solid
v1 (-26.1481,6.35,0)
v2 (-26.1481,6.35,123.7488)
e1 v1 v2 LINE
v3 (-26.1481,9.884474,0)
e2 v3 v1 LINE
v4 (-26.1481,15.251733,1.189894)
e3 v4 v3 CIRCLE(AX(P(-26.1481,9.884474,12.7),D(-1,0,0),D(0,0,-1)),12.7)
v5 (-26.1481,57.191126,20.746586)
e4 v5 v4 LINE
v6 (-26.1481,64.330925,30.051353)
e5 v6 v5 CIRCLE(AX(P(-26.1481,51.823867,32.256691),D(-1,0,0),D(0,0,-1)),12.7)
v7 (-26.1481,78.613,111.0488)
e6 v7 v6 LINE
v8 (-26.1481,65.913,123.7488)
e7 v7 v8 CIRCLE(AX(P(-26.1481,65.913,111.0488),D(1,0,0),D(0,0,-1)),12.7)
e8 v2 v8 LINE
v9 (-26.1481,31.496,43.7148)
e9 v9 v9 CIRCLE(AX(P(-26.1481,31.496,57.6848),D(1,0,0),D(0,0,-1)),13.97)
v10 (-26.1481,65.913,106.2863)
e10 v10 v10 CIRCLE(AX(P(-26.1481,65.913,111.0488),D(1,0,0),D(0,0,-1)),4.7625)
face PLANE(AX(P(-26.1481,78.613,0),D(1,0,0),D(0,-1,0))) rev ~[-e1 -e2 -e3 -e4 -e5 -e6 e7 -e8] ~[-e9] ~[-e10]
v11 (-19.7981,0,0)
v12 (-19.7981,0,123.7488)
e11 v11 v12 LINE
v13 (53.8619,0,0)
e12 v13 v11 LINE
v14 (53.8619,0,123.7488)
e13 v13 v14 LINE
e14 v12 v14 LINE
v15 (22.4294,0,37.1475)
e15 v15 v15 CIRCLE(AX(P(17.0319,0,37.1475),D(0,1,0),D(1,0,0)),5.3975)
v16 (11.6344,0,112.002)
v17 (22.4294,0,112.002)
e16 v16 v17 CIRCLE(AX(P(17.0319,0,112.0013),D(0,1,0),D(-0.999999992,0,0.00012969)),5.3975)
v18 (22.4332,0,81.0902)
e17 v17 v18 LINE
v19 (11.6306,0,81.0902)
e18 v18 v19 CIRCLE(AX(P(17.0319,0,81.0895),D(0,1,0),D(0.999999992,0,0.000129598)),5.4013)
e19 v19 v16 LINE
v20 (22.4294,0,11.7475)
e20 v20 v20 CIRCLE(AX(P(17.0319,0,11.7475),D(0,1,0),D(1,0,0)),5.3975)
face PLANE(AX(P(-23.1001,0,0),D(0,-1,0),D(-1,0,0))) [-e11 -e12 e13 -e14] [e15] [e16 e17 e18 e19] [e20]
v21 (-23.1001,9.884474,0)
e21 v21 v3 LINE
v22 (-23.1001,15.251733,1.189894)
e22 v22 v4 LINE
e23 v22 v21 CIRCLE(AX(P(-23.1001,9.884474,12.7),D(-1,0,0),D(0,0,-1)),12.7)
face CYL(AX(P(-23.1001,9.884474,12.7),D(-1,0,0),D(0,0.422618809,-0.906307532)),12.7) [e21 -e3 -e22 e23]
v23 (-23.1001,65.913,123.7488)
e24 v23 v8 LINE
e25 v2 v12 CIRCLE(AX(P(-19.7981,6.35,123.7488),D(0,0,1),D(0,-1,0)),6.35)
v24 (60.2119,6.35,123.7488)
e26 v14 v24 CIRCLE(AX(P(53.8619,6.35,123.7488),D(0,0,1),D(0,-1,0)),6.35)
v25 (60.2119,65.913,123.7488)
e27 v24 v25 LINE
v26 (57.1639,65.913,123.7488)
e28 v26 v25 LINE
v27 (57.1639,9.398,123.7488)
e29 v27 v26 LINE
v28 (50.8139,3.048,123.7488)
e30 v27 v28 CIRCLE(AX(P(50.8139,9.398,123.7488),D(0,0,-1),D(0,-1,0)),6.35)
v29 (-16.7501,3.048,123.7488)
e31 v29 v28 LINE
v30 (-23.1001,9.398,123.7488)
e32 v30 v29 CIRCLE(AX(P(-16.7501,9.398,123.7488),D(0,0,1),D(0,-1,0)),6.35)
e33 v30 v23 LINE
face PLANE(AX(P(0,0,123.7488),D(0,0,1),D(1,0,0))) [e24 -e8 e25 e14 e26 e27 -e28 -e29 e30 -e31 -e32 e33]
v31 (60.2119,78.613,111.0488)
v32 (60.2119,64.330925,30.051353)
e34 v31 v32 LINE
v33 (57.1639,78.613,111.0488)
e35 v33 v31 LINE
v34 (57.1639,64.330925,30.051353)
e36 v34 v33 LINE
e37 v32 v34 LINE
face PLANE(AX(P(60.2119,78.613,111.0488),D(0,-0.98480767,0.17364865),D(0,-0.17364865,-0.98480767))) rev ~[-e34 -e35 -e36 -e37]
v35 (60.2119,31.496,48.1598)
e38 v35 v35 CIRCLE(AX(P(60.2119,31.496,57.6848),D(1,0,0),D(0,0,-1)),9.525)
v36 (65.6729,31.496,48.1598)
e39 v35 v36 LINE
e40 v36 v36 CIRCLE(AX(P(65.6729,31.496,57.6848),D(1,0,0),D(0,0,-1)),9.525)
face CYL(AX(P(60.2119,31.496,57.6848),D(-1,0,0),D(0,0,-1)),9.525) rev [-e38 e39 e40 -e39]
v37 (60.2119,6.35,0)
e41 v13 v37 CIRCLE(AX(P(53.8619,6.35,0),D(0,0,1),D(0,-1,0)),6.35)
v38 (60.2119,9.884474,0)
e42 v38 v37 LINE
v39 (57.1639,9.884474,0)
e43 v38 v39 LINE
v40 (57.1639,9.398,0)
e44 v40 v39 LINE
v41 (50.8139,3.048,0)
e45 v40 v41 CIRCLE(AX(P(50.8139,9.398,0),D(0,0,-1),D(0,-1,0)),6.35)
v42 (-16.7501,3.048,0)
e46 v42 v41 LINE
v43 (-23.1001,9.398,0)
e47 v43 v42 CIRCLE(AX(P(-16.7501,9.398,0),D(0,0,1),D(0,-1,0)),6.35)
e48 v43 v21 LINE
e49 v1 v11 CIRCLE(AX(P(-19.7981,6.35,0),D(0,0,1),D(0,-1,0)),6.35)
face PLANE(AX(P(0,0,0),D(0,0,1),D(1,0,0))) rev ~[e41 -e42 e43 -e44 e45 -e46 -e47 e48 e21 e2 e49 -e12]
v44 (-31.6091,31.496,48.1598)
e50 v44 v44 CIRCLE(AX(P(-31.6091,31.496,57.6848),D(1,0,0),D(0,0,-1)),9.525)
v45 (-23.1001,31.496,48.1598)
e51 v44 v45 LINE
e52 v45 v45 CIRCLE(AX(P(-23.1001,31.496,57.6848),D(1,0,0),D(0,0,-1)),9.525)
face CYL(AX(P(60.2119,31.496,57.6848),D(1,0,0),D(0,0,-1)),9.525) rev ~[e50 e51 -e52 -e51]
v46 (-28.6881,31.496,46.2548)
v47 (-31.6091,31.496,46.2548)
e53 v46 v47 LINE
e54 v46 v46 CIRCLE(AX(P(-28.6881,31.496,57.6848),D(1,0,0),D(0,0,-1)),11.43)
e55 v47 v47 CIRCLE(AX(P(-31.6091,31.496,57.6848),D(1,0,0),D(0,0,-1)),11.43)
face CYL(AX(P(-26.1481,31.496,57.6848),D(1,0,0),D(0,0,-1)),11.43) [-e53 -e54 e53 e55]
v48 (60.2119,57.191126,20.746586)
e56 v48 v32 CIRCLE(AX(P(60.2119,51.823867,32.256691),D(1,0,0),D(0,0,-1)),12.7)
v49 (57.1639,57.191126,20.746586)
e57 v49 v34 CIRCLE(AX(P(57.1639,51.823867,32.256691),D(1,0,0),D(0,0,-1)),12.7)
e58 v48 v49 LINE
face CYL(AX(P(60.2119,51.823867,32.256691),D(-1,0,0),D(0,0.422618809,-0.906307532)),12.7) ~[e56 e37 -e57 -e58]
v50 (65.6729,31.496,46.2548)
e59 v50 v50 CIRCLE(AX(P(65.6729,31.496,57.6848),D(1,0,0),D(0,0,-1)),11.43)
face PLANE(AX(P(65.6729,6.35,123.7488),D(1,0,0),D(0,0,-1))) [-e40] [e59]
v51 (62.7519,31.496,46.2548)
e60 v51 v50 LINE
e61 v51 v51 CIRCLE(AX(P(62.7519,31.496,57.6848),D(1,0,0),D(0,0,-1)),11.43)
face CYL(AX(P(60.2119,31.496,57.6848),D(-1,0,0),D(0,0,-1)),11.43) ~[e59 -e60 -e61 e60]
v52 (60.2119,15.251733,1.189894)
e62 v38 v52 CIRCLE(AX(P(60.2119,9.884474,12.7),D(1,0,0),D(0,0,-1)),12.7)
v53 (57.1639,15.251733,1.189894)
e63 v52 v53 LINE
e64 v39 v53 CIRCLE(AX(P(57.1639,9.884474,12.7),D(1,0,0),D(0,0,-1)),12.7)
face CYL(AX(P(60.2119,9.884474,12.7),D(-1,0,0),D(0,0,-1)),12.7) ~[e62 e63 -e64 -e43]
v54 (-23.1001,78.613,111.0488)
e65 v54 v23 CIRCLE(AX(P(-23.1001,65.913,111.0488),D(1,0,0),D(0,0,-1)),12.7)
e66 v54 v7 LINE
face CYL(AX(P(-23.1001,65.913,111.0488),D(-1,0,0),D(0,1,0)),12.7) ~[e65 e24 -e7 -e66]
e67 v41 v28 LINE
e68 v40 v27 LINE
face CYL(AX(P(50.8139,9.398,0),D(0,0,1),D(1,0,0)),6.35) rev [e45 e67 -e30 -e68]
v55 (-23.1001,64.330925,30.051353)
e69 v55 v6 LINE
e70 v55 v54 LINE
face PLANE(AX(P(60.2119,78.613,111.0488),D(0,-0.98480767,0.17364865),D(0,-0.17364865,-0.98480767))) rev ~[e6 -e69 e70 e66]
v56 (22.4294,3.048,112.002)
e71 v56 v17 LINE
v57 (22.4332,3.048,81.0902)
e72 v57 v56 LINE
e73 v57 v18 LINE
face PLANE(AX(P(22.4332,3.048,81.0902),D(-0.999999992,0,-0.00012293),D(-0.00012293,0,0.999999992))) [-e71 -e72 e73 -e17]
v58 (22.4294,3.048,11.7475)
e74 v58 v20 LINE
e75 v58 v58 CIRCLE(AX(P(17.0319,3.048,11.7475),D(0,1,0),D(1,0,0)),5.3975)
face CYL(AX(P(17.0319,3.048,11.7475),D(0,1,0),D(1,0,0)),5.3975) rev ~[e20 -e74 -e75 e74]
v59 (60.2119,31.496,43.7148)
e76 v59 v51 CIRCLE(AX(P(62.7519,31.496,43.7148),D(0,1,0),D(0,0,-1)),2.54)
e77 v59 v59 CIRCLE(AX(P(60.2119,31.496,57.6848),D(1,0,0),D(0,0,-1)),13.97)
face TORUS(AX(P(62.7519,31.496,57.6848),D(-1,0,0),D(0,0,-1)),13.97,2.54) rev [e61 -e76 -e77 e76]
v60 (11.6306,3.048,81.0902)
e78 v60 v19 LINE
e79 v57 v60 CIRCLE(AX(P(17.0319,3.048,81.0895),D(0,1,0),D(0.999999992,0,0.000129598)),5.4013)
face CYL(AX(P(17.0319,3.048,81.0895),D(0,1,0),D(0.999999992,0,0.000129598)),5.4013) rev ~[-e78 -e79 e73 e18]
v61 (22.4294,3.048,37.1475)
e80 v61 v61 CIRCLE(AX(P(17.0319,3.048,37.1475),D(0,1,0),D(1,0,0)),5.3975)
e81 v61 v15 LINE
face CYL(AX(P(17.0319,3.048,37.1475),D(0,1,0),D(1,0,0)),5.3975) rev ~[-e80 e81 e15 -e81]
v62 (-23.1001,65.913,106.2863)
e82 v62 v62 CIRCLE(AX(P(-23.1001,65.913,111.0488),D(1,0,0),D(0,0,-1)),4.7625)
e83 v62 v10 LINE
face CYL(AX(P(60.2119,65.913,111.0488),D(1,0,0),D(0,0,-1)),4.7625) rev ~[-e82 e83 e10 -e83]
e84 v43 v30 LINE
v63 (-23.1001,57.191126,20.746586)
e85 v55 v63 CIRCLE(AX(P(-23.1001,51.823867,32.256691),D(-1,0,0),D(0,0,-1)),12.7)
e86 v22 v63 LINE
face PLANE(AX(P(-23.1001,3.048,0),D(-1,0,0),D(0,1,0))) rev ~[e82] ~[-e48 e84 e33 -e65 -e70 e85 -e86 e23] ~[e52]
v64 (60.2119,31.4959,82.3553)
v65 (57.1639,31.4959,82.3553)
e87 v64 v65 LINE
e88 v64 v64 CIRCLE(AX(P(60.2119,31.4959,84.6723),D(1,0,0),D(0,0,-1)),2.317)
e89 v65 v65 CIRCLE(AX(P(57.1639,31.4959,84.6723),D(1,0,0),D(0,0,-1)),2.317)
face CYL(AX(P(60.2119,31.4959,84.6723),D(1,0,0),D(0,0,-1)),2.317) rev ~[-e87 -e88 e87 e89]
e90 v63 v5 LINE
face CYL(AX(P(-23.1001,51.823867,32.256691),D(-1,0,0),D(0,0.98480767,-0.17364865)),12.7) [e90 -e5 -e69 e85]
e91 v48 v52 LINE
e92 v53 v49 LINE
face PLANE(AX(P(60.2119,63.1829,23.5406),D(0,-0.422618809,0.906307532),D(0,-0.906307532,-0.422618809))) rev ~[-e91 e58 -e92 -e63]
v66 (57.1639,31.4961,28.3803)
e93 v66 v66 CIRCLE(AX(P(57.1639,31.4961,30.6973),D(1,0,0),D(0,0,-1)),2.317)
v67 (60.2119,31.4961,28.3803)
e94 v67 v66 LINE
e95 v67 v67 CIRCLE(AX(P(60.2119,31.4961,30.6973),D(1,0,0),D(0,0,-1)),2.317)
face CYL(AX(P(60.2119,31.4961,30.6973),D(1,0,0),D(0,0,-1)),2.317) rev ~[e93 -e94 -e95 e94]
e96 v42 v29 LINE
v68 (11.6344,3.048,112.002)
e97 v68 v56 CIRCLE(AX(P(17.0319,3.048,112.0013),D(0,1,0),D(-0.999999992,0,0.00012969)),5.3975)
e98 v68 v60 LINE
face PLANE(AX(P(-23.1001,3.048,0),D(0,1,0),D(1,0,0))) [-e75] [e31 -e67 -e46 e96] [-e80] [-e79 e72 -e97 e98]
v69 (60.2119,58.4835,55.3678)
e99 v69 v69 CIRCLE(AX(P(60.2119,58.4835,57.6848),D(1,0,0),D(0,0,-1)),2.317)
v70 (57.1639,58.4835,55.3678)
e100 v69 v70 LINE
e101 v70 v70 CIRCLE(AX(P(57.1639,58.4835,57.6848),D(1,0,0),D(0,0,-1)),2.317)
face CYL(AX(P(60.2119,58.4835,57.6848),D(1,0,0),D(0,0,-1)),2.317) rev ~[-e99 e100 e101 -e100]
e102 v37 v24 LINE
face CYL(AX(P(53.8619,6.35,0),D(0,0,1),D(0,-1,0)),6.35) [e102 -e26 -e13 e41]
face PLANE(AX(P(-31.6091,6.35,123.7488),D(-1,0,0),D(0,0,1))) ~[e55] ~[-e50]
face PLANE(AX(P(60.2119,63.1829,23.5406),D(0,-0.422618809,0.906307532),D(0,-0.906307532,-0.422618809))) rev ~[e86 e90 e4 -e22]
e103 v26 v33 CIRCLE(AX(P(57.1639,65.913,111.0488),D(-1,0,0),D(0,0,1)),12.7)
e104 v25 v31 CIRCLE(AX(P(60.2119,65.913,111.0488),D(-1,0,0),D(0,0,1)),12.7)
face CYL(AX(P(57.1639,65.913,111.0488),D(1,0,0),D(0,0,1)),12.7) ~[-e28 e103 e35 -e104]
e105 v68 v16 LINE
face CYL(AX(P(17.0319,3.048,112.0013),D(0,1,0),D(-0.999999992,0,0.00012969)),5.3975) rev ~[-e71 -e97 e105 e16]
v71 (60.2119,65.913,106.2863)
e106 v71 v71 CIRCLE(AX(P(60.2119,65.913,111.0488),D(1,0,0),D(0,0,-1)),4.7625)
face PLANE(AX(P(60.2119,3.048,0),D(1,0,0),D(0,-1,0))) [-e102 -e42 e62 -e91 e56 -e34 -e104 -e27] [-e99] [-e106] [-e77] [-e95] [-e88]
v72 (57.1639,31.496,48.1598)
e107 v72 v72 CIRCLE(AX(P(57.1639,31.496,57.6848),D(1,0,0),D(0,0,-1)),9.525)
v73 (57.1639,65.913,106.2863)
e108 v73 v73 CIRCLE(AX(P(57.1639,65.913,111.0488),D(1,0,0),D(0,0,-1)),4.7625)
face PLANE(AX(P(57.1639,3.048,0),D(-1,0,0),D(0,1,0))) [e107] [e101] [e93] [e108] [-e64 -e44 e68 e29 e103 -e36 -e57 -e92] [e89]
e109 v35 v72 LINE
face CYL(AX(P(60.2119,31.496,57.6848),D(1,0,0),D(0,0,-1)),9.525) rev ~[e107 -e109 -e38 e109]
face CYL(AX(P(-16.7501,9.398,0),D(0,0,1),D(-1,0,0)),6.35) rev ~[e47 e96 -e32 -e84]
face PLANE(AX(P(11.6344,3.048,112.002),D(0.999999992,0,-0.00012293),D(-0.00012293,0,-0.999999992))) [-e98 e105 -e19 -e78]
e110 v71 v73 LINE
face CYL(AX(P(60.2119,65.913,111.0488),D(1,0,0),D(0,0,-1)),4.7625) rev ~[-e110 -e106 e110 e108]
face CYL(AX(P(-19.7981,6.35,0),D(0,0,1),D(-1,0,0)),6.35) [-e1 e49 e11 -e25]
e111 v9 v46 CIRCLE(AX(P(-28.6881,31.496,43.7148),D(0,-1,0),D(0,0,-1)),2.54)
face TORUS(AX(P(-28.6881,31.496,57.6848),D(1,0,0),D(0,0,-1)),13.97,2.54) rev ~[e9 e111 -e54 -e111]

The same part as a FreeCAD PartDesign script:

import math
import FreeCAD as App
import Part
import Sketcher

V = App.Vector
Q = App.Units.Quantity


def edges_at(feature, points):
    """Names of the edges that pass closest to the given points."""
    edges = feature.Shape.Edges
    near = lambda p: min(range(len(edges)), key=lambda i: edges[i].distToShape(Part.Vertex(*p))[0])
    return sorted({f"Edge{near(p) + 1}" for p in points})


def add_polygon(sketch, points):
    """Adds a closed chain of lines whose ends are joined by coincident constraints."""
    first, n = sketch.GeometryCount, len(points)
    for a, b in zip(points, points[1:] + points[:1]):
        sketch.addGeometry(Part.LineSegment(App.Vector(*a, 0), App.Vector(*b, 0)), False)
    for i in range(n):
        sketch.addConstraint(Sketcher.Constraint("Coincident", first + i, 2, first + (i + 1) % n, 1))

doc = App.newDocument("Part")
body = doc.addObject("PartDesign::Body", "Body")

sketch1 = body.newObject("Sketcher::SketchObject", "Sketch")
sketch1.AttachmentSupport = (doc.getObject("XY_Plane"), [""])
sketch1.MapMode = "FlatFace"
add_polygon(sketch1, [(-26.1481, 78.613), (-26.1481, 0), (60.2119, 0), (60.2119, 78.613), (57.1639, 78.613), (57.1639, 3.048), (-23.1001, 3.048), (-23.1001, 78.613)])
sketch1.addConstraint([
    Sketcher.Constraint("Vertical", 0),
    Sketcher.Constraint("Horizontal", 1),
    Sketcher.Constraint("Vertical", 2),
    Sketcher.Constraint("Horizontal", 3),
    Sketcher.Constraint("Vertical", 4),
    Sketcher.Constraint("Horizontal", 5),
    Sketcher.Constraint("Vertical", 6),
    Sketcher.Constraint("Horizontal", 7),
    Sketcher.Constraint("PointOnObject", 0, 2, -1),
    Sketcher.Constraint("Horizontal", 3, 2, 6, 2),
    Sketcher.Constraint("Equal", 3, 7),
    Sketcher.Constraint("DistanceX", 1, 1, 1, 2, Q("3.4 in")),
    Sketcher.Constraint("DistanceX", 3, 2, 3, 1, Q("0.12 in")),
    Sketcher.Constraint("DistanceY", 0, 2, 0, 1, Q("3.095 in")),
    Sketcher.Constraint("DistanceY", -1, 1, 4, 2, Q("0.12 in")),
    Sketcher.Constraint("DistanceX", 0, 2, -1, 1, 26.148),
])
pad1 = body.newObject("PartDesign::Pad", "Pad")
pad1.Profile = sketch1
pad1.Length = Q("4.872 in")
doc.recompute()

fillet = body.newObject("PartDesign::Fillet", "Fillet")
fillet.Base = (pad1, edges_at(pad1, [(58.688, 78.613, 123.749), (-24.624, 78.613, 123.749)]))
fillet.Radius = Q("0.5 in")

sketch2 = body.newObject("Sketcher::SketchObject", "Sketch001")
sketch2.AttachmentSupport = (doc.getObject("YZ_Plane"), [""])
sketch2.MapMode = "FlatFace"
sketch2.AttachmentOffset = App.Placement(V(0, 0, 60.2119), App.Rotation())
sketch2.addGeometry(Part.Circle(V(65.913, 111.0488, 0), V(0, 0, 1), 4.7625), False)
sketch2.addConstraint([
    Sketcher.Constraint("Diameter", 0, Q("0.375 in")),
    Sketcher.Constraint("DistanceX", -1, 1, 0, 3, Q("2.595 in")),
    Sketcher.Constraint("DistanceY", -1, 1, 0, 3, Q("4.372 in")),
])
pocket1 = body.newObject("PartDesign::Pocket", "Pocket")
pocket1.Profile = sketch2
pocket1.Type = "ThroughAll"
doc.recompute()

fillet2 = body.newObject("PartDesign::Fillet", "Fillet001")
fillet2.Base = (pocket1, edges_at(pocket1, [
    (57.164, 3.048, 61.874),
    (60.212, 0, 61.874),
    (-23.1, 3.048, 61.874),
    (-26.148, 0, 61.874),
]))
fillet2.Radius = Q("0.25 in")

sketch3 = body.newObject("Sketcher::SketchObject", "Sketch002")
sketch3.AttachmentSupport = (doc.getObject("YZ_Plane"), [""])
sketch3.MapMode = "FlatFace"
sketch3.AttachmentOffset = App.Placement(V(0, 0, 60.2119), App.Rotation())
add_polygon(sketch3, [(63.1829, 23.5406), (12.7, 0), (78.613, 0), (78.613, 111.0488)])
sketch3.addConstraint([
    Sketcher.Constraint("Horizontal", 1),
    Sketcher.Constraint("Vertical", 2),
    Sketcher.Constraint("PointOnObject", 0, 2, -1),
    Sketcher.Constraint("Angle", 0, Q("-155 deg")),
    Sketcher.Constraint("Angle", 3, Q("-100 deg")),
    Sketcher.Constraint("DistanceX", -1, 1, 0, 2, Q("0.5 in")),
    Sketcher.Constraint("DistanceX", 1, 1, 1, 2, Q("2.595 in")),
    Sketcher.Constraint("DistanceY", 2, 1, 2, 2, Q("4.372 in")),
])
pocket2 = body.newObject("PartDesign::Pocket", "Pocket001")
pocket2.Profile = sketch3
pocket2.Type = "ThroughAll"
doc.recompute()

fillet3 = body.newObject("PartDesign::Fillet", "Fillet002")
fillet3.Base = (pocket2, edges_at(pocket2, [(58.688, 63.183, 23.541), (-24.624, 63.183, 23.541)]))
fillet3.Radius = Q("0.5 in")
doc.recompute()

fillet4 = body.newObject("PartDesign::Fillet", "Fillet003")
fillet4.Base = (fillet3, edges_at(fillet3, [(58.688, 12.7, 0), (-24.624, 12.7, 0)]))
fillet4.Radius = Q("0.5 in")

sketch4 = body.newObject("Sketcher::SketchObject", "Sketch003")
sketch4.AttachmentSupport = (doc.getObject("XZ_Plane"), [""])
sketch4.MapMode = "FlatFace"
sketch4.AttachmentOffset = App.Placement(V(0, 0, -0.12 * 25.4), App.Rotation())
sketch4.addGeometry([
    Part.Circle(V(17.0319, 11.7475, 0), V(0, 0, 1), 5.3975),
    Part.Circle(V(17.0319, 37.1475, 0), V(0, 0, 1), 5.3975),
    Part.LineSegment(V(11.6306, 81.0902, 0), V(11.6344, 112.002, 0)),
    Part.ArcOfCircle(Part.Circle(V(17.0319, 112.0013, 0), V(0, 0, 1), 5.3975), math.radians(0.007431), math.radians(179.992569)),
    Part.LineSegment(V(22.4294, 112.002, 0), V(22.4332, 81.0902, 0)),
    Part.ArcOfCircle(Part.Circle(V(17.0319, 81.0895, 0), V(0, 0, 1), 5.4013), math.radians(179.992575), math.radians(360.007425)),
], False)
sketch4.addConstraint([
    Sketcher.Constraint("Coincident", 2, 2, 3, 2),
    Sketcher.Constraint("Coincident", 3, 1, 4, 1),
    Sketcher.Constraint("Coincident", 4, 2, 5, 2),
    Sketcher.Constraint("Coincident", 5, 1, 2, 1),
    Sketcher.Constraint("Diameter", 0, Q("0.425 in")),
    Sketcher.Constraint("Diameter", 1, Q("0.425 in")),
    Sketcher.Constraint("DistanceY", 0, 3, 1, 3, Q("1 in")),
    Sketcher.Constraint("Radius", 3, Q("0.2125 in")),
    Sketcher.Constraint("Radius", 5, 5.4013),
    Sketcher.Constraint("Distance", 2, Q("1.217 in")),
    Sketcher.Constraint("Distance", 4, Q("1.217 in")),
    Sketcher.Constraint("DistanceY", 5, 3, 3, 3, Q("1.217 in")),
    Sketcher.Constraint("DistanceY", 4, 2, 2, 2, Q("1.217 in")),
    Sketcher.Constraint("DistanceY", -1, 1, 0, 3, Q("0.4625 in")),
    Sketcher.Constraint("DistanceY", 1, 3, 5, 3, Q("1.73 in")),
    Sketcher.Constraint("DistanceX", -1, 1, 4, 2, Q("0.8832 in")),
    Sketcher.Constraint("DistanceX", 2, 2, 5, 3, Q("0.2125 in")),
    Sketcher.Constraint("DistanceX", 2, 2, 1, 3, Q("0.2125 in")),
    Sketcher.Constraint("DistanceX", 2, 2, 0, 3, Q("0.2125 in")),
    Sketcher.Constraint("DistanceY", -1, 1, 2, 2, 112.002),
])
pocket3 = body.newObject("PartDesign::Pocket", "Pocket002")
pocket3.Profile = sketch4
pocket3.Type = "ThroughAll"
pocket3.Reversed = True

sketch5 = body.newObject("Sketcher::SketchObject", "Sketch004")
sketch5.AttachmentSupport = (doc.getObject("YZ_Plane"), [""])
sketch5.MapMode = "FlatFace"
sketch5.AttachmentOffset = App.Placement(V(0, 0, 60.2119), App.Rotation())
sketch5.addGeometry([
    Part.Circle(V(31.496, 57.6848, 0), V(0, 0, 1), 11.43),
    Part.Circle(V(31.496, 57.6848, 0), V(0, 0, 1), 9.525),
], False)
sketch5.addConstraint([
    Sketcher.Constraint("Coincident", 1, 3, 0, 3),
    Sketcher.Constraint("Diameter", 0, Q("0.9 in")),
    Sketcher.Constraint("Diameter", 1, Q("0.75 in")),
    Sketcher.Constraint("DistanceX", -1, 1, 0, 3, Q("1.24 in")),
    Sketcher.Constraint("DistanceY", -1, 1, 0, 3, 57.6848),
])
pad2 = body.newObject("PartDesign::Pad", "Pad001")
pad2.Profile = sketch5
pad2.Length = Q("0.215 in")
doc.recompute()

datumplane = body.newObject("PartDesign::Plane", "DatumPlane")
datumplane.AttachmentSupport = (doc.getObject("YZ_Plane"), [""])
datumplane.MapMode = "FlatFace"
datumplane.AttachmentOffset = App.Placement(V(0, 0, 17.0319), App.Rotation())
mirrored = body.newObject("PartDesign::Mirrored", "Mirrored")
mirrored.Originals = [pad2]
mirrored.MirrorPlane = (datumplane, [""])
body.Tip = mirrored

sketch6 = body.newObject("Sketcher::SketchObject", "Sketch005")
sketch6.AttachmentSupport = (doc.getObject("YZ_Plane"), [""])
sketch6.MapMode = "FlatFace"
sketch6.AttachmentOffset = App.Placement(V(0, 0, 60.2119), App.Rotation())
sketch6.addGeometry(Part.Circle(V(31.496, 57.6848, 0), V(0, 0, 1), 9.525), False)
sketch6.addConstraint([
    Sketcher.Constraint("Diameter", 0, Q("0.75 in")),
    Sketcher.Constraint("DistanceX", -1, 1, 0, 3, Q("1.24 in")),
    Sketcher.Constraint("DistanceY", -1, 1, 0, 3, 57.6848),
])
pocket4 = body.newObject("PartDesign::Pocket", "Pocket003")
pocket4.Profile = sketch6
pocket4.Type = "ThroughAll"
doc.recompute()

fillet5 = body.newObject("PartDesign::Fillet", "Fillet004")
fillet5.Base = (pocket4, edges_at(pocket4, [(60.212, 31.496, 69.115), (-26.148, 31.496, 69.115)]))
fillet5.Radius = Q("0.1 in")

sketch7 = body.newObject("Sketcher::SketchObject", "Sketch006")
sketch7.AttachmentSupport = (doc.getObject("YZ_Plane"), [""])
sketch7.MapMode = "FlatFace"
sketch7.AttachmentOffset = App.Placement(V(0, 0, 60.2119), App.Rotation())
sketch7.addGeometry([
    Part.Circle(V(31.4959, 84.6723, 0), V(0, 0, 1), 2.317),
    Part.Circle(V(31.4961, 30.6973, 0), V(0, 0, 1), 2.317),
    Part.Circle(V(58.4835, 57.6848, 0), V(0, 0, 1), 2.317),
], False)
sketch7.addConstraint([
    Sketcher.Constraint("Equal", 0, 1),
    Sketcher.Constraint("Equal", 1, 2),
    Sketcher.Constraint("Vertical", 0, 3, 1, 3),
    Sketcher.Constraint("Diameter", 0, 4.634),
    Sketcher.Constraint("DistanceX", -1, 1, 0, 3, Q("1.24 in")),
    Sketcher.Constraint("DistanceY", 1, 3, 0, 3, Q("2.125 in")),
    Sketcher.Constraint("DistanceX", 1, 3, 2, 3, Q("1.0625 in")),
    Sketcher.Constraint("DistanceY", 1, 3, 2, 3, Q("1.0625 in")),
    Sketcher.Constraint("DistanceY", -1, 1, 0, 3, 84.6723),
])
pocket5 = body.newObject("PartDesign::Pocket", "Pocket004")
pocket5.Profile = sketch7
pocket5.Length = Q("0.12 in")

doc.recompute()
